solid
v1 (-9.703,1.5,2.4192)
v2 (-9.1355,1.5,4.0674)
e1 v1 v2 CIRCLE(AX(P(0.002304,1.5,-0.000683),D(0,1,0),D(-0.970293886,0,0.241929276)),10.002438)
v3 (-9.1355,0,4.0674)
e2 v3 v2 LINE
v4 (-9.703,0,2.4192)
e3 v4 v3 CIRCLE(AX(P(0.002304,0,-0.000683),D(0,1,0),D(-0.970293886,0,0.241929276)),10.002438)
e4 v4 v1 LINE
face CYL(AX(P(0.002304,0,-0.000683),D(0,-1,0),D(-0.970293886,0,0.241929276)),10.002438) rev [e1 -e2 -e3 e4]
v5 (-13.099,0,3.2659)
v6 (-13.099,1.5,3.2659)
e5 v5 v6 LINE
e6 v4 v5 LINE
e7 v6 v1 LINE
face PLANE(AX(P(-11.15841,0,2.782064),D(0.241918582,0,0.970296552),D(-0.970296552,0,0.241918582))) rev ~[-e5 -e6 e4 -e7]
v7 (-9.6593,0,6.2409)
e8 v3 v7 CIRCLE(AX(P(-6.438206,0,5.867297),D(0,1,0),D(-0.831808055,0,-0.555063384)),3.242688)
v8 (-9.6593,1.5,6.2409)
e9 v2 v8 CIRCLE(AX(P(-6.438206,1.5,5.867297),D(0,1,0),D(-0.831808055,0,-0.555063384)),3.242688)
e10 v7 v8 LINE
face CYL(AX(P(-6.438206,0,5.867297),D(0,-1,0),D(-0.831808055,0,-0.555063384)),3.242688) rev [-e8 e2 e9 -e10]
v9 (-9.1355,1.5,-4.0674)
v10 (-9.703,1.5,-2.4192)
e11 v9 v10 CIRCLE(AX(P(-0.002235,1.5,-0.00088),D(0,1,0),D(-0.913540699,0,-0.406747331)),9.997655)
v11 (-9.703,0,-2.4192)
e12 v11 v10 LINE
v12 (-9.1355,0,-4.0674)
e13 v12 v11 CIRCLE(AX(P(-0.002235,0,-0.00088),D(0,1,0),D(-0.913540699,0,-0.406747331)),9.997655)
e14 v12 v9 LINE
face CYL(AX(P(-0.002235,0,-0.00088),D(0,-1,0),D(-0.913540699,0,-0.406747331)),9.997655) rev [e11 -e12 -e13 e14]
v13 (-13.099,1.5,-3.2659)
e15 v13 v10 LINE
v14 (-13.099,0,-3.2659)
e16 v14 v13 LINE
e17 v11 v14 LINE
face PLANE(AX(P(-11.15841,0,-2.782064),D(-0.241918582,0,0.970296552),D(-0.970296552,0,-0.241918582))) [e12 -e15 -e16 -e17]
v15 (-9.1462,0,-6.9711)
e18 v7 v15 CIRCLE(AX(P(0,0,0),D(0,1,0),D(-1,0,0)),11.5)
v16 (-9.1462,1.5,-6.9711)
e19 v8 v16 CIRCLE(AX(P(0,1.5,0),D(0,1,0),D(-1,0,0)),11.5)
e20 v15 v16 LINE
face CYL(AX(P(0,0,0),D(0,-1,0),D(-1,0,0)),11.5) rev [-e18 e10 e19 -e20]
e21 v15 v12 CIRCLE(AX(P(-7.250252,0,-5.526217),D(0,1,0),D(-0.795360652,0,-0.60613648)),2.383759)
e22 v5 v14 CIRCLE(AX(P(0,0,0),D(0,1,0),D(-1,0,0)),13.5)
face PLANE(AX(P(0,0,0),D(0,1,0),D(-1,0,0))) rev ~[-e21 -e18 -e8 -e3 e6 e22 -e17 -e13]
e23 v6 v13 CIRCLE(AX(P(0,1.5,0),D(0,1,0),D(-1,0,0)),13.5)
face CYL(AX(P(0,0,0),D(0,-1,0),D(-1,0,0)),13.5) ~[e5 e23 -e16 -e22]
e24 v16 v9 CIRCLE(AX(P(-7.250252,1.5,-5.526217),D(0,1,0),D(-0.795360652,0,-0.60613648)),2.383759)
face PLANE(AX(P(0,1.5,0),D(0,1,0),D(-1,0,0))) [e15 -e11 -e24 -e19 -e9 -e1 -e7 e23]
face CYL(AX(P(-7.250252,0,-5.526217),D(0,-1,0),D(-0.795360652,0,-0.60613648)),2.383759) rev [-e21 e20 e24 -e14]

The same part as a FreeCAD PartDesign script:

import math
import FreeCAD as App
import Part
import Sketcher
Q = App.Units.Quantity

doc = App.newDocument("Part")
body = doc.addObject("PartDesign::Body", "Body")

# Sketch on XZ plane
sketch1 = doc.addObject("Sketcher::SketchObject", "Sketch")
body.addObject(sketch1)
sketch1.AttachmentSupport = (doc.XZ_Plane, [""])
sketch1.MapMode = "FlatFace"
sketch1.addGeometry([
    Part.ArcOfCircle(Part.Circle(App.Vector(0, 0, 0), App.Vector(0, 0, 1), 13.5), math.radians(-166.000196), math.radians(166.000196)),  # 0
    Part.LineSegment(App.Vector(-13.099, -3.2659, 0), App.Vector(-9.703, -2.4192, 0)),  # 1
    Part.ArcOfCircle(Part.Circle(App.Vector(-0.002235, -0.00088, 0), App.Vector(0, 0, 1), 9.997655), math.radians(-166.001961), math.radians(-155.99933)),  # 2
    Part.ArcOfCircle(Part.Circle(App.Vector(-7.2505, -5.5263, 0), App.Vector(0, 0, 1), 2.383511), math.radians(142.26184), math.radians(217.312689)),  # 3
    Part.ArcOfCircle(Part.Circle(App.Vector(0, 0, 0), App.Vector(0, 0, 1), 11.5), math.radians(-142.68588), math.radians(147.133388)),  # 4
    Part.ArcOfCircle(Part.Circle(App.Vector(-6.4382, 5.8673, 0), App.Vector(0, 0, 1), 3.242694), math.radians(173.384098), math.radians(213.71506)),  # 5
    Part.ArcOfCircle(Part.Circle(App.Vector(0.002304, -0.000683, 0), App.Vector(0, 0, 1), 10.002438), math.radians(156.001727), math.radians(165.999564)),  # 6
    Part.LineSegment(App.Vector(-9.703, 2.4192, 0), App.Vector(-13.099, 3.2659, 0)),  # 7
], False)
sketch1.addConstraint([
    Sketcher.Constraint("Coincident", 0, 1, 1, 1),
    Sketcher.Constraint("Coincident", 1, 2, 2, 1),
    Sketcher.Constraint("Coincident", 2, 2, 3, 1),
    Sketcher.Constraint("Tangent", 3, 2, 4, 1),
    Sketcher.Constraint("Coincident", 4, 2, 5, 1),
    Sketcher.Constraint("Coincident", 5, 2, 6, 1),
    Sketcher.Constraint("Coincident", 6, 2, 7, 1),
    Sketcher.Constraint("Coincident", 7, 2, 0, 2),
    Sketcher.Constraint("Coincident", 0, 3, -1, 1),
    Sketcher.Constraint("Coincident", 4, 3, -1, 1),
    Sketcher.Constraint("Symmetric", 2, 3, 6, 3, -2),
    Sketcher.Constraint("Symmetric", 2, 2, 5, 2, -1),
    Sketcher.Constraint("Symmetric", 1, 2, 6, 2, -1),
    Sketcher.Constraint("Vertical", 0, 1, 7, 2),
    Sketcher.Constraint("Radius", 0, Q("13.5 mm")),
    Sketcher.Constraint("Radius", 4, Q("11.5 mm")),
    Sketcher.Constraint("Angle", 1, Q("13.9997 deg")),
    Sketcher.Constraint("Distance", 1, Q("3.5 mm")),
    Sketcher.Constraint("Radius", 2, Q("9.9977 mm")),
    Sketcher.Constraint("Radius", 3, Q("2.3835 mm")),
    Sketcher.Constraint("Radius", 5, Q("3.2427 mm")),
    Sketcher.Constraint("DistanceY", 5, 2, 5, 3, Q("1.8 mm")),
    Sketcher.Constraint("DistanceY", 1, 2, 4, 2, Q("8.66 mm")),
    Sketcher.Constraint("DistanceX", 0, 1, -1, 1, Q("13.099 mm")),
])
pad1 = doc.addObject("PartDesign::Pad", "Pad")
body.addObject(pad1)
pad1.Profile = sketch1
pad1.Length = 1.5
pad1.Reversed = True

doc.recompute()
